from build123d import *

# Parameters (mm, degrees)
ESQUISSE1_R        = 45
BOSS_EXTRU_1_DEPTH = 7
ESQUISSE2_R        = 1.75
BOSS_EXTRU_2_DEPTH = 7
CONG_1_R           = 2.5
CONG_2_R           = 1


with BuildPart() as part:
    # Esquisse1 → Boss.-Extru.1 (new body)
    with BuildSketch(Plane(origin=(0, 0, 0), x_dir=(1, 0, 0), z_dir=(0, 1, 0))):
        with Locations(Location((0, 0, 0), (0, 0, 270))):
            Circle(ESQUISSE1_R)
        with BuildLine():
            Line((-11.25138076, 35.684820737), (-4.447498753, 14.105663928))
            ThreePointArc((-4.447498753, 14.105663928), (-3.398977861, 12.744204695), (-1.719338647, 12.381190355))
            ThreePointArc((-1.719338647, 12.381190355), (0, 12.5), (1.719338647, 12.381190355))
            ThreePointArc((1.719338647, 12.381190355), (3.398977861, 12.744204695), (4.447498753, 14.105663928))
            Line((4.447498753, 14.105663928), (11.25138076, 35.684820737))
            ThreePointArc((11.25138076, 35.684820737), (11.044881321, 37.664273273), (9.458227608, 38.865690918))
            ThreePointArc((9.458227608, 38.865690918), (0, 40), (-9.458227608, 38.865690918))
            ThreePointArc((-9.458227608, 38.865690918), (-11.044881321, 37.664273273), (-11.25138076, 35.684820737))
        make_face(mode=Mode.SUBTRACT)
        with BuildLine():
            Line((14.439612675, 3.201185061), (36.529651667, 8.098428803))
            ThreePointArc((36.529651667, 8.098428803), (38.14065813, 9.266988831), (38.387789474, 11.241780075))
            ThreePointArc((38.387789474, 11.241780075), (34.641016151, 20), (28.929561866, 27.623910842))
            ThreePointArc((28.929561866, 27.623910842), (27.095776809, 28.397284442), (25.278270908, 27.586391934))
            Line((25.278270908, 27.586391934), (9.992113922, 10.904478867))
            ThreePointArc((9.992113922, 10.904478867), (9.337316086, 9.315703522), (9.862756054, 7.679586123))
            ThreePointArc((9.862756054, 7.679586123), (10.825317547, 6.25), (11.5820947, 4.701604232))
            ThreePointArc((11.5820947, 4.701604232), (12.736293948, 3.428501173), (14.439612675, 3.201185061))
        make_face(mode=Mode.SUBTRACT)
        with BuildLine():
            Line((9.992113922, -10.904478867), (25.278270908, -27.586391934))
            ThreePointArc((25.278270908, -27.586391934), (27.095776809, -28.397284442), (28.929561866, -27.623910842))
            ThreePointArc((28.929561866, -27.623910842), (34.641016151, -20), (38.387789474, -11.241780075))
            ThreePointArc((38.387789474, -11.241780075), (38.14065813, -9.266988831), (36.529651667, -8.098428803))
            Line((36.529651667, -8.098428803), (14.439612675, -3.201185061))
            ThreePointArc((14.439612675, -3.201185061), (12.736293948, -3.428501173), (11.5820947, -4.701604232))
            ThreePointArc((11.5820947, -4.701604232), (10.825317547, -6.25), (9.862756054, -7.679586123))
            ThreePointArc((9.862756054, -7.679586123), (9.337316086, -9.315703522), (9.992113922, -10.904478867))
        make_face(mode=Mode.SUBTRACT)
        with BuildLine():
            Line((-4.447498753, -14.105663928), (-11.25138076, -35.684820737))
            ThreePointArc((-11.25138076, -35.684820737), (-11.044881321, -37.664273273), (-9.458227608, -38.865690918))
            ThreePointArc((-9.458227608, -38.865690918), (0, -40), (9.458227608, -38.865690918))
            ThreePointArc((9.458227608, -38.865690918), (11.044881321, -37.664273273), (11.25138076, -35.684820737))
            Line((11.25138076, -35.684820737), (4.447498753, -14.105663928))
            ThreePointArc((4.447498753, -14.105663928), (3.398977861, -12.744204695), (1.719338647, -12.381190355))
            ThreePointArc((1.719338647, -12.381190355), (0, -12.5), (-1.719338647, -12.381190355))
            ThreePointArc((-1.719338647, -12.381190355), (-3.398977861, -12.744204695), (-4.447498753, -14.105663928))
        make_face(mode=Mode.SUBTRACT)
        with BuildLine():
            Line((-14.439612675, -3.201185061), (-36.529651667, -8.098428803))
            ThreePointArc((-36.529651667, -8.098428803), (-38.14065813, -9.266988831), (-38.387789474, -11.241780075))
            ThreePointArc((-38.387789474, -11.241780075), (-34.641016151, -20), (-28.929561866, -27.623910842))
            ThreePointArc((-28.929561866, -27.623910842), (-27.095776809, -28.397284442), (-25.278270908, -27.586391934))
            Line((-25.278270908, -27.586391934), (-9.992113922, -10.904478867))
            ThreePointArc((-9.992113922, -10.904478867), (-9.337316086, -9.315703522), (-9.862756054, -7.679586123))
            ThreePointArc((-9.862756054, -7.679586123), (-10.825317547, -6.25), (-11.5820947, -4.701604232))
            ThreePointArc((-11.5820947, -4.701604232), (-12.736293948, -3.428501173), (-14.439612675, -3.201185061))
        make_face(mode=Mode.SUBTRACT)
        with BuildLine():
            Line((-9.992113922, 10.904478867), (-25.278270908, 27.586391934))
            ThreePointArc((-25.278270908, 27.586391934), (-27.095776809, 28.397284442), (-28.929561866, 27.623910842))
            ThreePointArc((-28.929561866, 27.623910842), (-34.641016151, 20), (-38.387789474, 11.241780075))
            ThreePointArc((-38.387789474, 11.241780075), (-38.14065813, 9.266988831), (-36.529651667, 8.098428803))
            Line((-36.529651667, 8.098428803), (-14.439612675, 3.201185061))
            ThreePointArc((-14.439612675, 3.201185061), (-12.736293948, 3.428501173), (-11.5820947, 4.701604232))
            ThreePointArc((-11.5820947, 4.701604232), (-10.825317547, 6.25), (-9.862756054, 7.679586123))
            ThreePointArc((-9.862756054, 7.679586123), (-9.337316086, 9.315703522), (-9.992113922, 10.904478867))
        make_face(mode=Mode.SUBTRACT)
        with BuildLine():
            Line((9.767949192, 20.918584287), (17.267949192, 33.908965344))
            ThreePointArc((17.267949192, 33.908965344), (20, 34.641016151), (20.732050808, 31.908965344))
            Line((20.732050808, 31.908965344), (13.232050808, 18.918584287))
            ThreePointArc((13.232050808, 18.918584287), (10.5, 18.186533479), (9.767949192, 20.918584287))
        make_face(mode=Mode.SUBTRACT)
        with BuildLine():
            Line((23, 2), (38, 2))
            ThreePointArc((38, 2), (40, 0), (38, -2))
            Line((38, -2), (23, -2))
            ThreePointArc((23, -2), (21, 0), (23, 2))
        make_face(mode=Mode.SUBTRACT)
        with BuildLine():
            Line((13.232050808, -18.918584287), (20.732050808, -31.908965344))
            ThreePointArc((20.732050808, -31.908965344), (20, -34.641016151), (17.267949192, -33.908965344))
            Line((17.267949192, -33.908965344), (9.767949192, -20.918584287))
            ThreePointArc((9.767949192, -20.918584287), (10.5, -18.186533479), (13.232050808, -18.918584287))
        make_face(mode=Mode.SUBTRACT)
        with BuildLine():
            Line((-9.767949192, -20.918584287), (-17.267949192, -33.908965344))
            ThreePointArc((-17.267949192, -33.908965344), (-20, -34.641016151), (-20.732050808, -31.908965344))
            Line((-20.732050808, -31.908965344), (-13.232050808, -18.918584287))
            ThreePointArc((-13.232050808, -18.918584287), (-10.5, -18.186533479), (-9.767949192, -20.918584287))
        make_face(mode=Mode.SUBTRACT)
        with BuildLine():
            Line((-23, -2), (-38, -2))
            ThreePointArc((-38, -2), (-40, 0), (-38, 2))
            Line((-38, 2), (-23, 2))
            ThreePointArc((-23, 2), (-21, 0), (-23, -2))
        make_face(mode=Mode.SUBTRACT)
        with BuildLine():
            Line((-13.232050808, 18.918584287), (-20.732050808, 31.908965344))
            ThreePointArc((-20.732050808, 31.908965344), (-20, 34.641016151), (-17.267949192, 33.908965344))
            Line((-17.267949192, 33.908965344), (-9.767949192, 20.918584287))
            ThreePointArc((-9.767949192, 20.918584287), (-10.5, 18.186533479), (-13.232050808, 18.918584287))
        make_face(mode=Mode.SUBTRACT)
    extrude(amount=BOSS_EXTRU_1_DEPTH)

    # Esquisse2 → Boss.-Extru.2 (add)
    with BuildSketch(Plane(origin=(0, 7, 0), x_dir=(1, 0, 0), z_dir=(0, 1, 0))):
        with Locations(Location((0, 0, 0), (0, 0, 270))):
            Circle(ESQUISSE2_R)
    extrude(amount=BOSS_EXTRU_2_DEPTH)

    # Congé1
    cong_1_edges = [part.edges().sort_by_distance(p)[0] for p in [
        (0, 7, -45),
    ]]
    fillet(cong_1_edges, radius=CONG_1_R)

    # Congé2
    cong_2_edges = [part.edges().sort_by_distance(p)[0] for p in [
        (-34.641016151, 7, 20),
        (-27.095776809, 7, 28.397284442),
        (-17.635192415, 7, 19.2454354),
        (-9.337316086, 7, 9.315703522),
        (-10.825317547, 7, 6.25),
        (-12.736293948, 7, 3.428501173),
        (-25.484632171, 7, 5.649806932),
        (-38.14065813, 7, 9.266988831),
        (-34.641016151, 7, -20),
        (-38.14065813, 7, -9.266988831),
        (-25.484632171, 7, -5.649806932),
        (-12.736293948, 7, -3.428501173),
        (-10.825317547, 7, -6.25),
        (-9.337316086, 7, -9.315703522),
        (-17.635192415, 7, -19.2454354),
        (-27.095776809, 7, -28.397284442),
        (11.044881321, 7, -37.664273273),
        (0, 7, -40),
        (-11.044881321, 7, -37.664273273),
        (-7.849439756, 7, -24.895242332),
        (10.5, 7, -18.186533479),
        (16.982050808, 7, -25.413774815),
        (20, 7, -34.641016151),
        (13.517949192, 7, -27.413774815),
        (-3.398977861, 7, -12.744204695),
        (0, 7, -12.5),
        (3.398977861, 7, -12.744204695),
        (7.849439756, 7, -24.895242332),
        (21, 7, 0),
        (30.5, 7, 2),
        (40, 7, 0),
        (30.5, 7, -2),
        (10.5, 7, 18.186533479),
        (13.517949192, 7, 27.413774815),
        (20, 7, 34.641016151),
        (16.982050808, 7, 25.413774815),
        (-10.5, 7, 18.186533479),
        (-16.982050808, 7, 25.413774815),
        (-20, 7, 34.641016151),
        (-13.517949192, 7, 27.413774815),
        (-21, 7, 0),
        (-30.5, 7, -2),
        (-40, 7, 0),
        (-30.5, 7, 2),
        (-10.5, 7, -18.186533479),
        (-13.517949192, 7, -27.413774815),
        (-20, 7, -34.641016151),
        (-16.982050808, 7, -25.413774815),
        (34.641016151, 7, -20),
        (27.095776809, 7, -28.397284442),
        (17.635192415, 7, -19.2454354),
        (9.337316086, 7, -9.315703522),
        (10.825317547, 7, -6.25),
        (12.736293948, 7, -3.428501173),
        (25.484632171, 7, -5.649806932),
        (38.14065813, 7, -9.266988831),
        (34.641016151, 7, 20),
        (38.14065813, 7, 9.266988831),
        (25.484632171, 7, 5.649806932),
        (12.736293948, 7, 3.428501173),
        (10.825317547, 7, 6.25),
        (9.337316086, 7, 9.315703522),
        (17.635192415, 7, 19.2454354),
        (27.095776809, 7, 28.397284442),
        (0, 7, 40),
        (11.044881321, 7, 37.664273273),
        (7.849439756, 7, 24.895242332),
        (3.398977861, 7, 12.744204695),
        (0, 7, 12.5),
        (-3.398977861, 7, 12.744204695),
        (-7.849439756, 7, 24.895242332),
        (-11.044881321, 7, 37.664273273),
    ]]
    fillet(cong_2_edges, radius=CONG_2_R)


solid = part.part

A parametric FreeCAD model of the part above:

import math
import FreeCAD as App
import Part
import Sketcher

V = App.Vector
Q = App.Units.Quantity


def edges_at(feature, points):
    """Names of the edges that pass closest to the given points."""
    edges = feature.Shape.Edges
    near = lambda p: min(range(len(edges)), key=lambda i: edges[i].distToShape(Part.Vertex(*p))[0])
    return sorted({f"Edge{near(p) + 1}" for p in points})

doc = App.newDocument("Part")
body = doc.addObject("PartDesign::Body", "Body")

# Sketch on XZ plane
sketch1 = doc.addObject("Sketcher::SketchObject", "Sketch")
body.addObject(sketch1)
sketch1.AttachmentSupport = (doc.XZ_Plane, [""])
sketch1.MapMode = "FlatFace"
sketch1.addGeometry([
    Part.Circle(V(0, 0, 0), V(0, 0, 1), 45),  # 0
    Part.LineSegment(V(-25.278271, -27.586392, 0), V(-9.992114, -10.904479, 0)),  # 1
    Part.ArcOfCircle(Part.Circle(V(-11.835307, -9.215503, 0), V(0, 0, 1), 2.5), math.radians(-42.5), math.radians(37.905932)),  # 2
    Part.ArcOfCircle(Part.Circle(V(0, 0, 0), V(0, 0, 1), 12.5), math.radians(-157.905932), math.radians(-142.094068)),  # 3
    Part.ArcOfCircle(Part.Circle(V(-13.898514, -5.641925, 0), V(0, 0, 1), 2.5), math.radians(22.094068), math.radians(102.5)),  # 4
    Part.LineSegment(V(-14.439613, -3.201185, 0), V(-36.529652, -8.098429, 0)),  # 5
    Part.ArcOfCircle(Part.Circle(V(-35.988553, -10.539169, 0), V(0, 0, 1), 2.5), math.radians(102.5), math.radians(196.322554)),  # 6
    Part.ArcOfCircle(Part.Circle(V(0, 0, 0), V(0, 0, 1), 40), math.radians(-163.677446), math.radians(-136.322554)),  # 7
    Part.ArcOfCircle(Part.Circle(V(-27.121464, -25.897416, 0), V(0, 0, 1), 2.5), math.radians(-136.322554), math.radians(-42.5)),  # 8
    Part.ArcOfCircle(Part.Circle(V(-11.5, -19.918584, 0), V(0, 0, 1), 2), math.radians(-30), math.radians(150)),  # 9
    Part.LineSegment(V(-13.232051, -18.918584, 0), V(-20.732051, -31.908965, 0)),  # 10
    Part.ArcOfCircle(Part.Circle(V(-19, -32.908965, 0), V(0, 0, 1), 2), math.radians(150), math.radians(330)),  # 11
    Part.LineSegment(V(-17.267949, -33.908965, 0), V(-9.767949, -20.918584, 0)),  # 12
    Part.LineSegment(V(-4.447499, -14.105664, 0), V(-11.251381, -35.684821, 0)),  # 13
    Part.ArcOfCircle(Part.Circle(V(-8.867088, -36.436585, 0), V(0, 0, 1), 2.5), math.radians(162.5), math.radians(256.322554)),  # 14
    Part.ArcOfCircle(Part.Circle(V(0, 0, 0), V(0, 0, 1), 40), math.radians(-103.677446), math.radians(-76.322554)),  # 15
    Part.ArcOfCircle(Part.Circle(V(8.867088, -36.436585, 0), V(0, 0, 1), 2.5), math.radians(-76.322554), math.radians(17.5)),  # 16
    Part.LineSegment(V(11.251381, -35.684821, 0), V(4.447499, -14.105664, 0)),  # 17
    Part.ArcOfCircle(Part.Circle(V(2.063206, -14.857428, 0), V(0, 0, 1), 2.5), math.radians(17.5), math.radians(97.905932)),  # 18
    Part.ArcOfCircle(Part.Circle(V(0, 0, 0), V(0, 0, 1), 12.5), math.radians(-97.905932), math.radians(-82.094068)),  # 19
    Part.ArcOfCircle(Part.Circle(V(-2.063206, -14.857428, 0), V(0, 0, 1), 2.5), math.radians(82.094068), math.radians(162.5)),  # 20
    Part.ArcOfCircle(Part.Circle(V(-23, 0, 0), V(0, 0, 1), 2), math.radians(-90), math.radians(90)),  # 21
    Part.LineSegment(V(-23, 2, 0), V(-38, 2, 0)),  # 22
    Part.ArcOfCircle(Part.Circle(V(-38, 0, 0), V(0, 0, 1), 2), math.radians(90), math.radians(270)),  # 23
    Part.LineSegment(V(-38, -2, 0), V(-23, -2, 0)),  # 24
    Part.LineSegment(V(-36.529652, 8.098429, 0), V(-14.439613, 3.201185, 0)),  # 25
    Part.ArcOfCircle(Part.Circle(V(-13.898514, 5.641925, 0), V(0, 0, 1), 2.5), math.radians(-102.5), math.radians(-22.094068)),  # 26
    Part.ArcOfCircle(Part.Circle(V(0, 0, 0), V(0, 0, 1), 12.5), math.radians(142.094068), math.radians(157.905932)),  # 27
    Part.ArcOfCircle(Part.Circle(V(-11.835307, 9.215503, 0), V(0, 0, 1), 2.5), math.radians(-37.905932), math.radians(42.5)),  # 28
    Part.LineSegment(V(-9.992114, 10.904479, 0), V(-25.278271, 27.586392, 0)),  # 29
    Part.ArcOfCircle(Part.Circle(V(-27.121464, 25.897416, 0), V(0, 0, 1), 2.5), math.radians(42.5), math.radians(136.322554)),  # 30
    Part.ArcOfCircle(Part.Circle(V(0, 0, 0), V(0, 0, 1), 40), math.radians(136.322554), math.radians(163.677446)),  # 31
    Part.ArcOfCircle(Part.Circle(V(-35.988553, 10.539169, 0), V(0, 0, 1), 2.5), math.radians(163.677446), math.radians(257.5)),  # 32
    Part.ArcOfCircle(Part.Circle(V(-11.5, 19.918584, 0), V(0, 0, 1), 2), math.radians(-150), math.radians(30)),  # 33
    Part.LineSegment(V(-9.767949, 20.918584, 0), V(-17.267949, 33.908965, 0)),  # 34
    Part.ArcOfCircle(Part.Circle(V(-19, 32.908965, 0), V(0, 0, 1), 2), math.radians(30), math.radians(210)),  # 35
    Part.LineSegment(V(-20.732051, 31.908965, 0), V(-13.232051, 18.918584, 0)),  # 36
    Part.ArcOfCircle(Part.Circle(V(11.5, -19.918584, 0), V(0, 0, 1), 2), math.radians(30), math.radians(210)),  # 37
    Part.LineSegment(V(9.767949, -20.918584, 0), V(17.267949, -33.908965, 0)),  # 38
    Part.ArcOfCircle(Part.Circle(V(19, -32.908965, 0), V(0, 0, 1), 2), math.radians(-150), math.radians(30)),  # 39
    Part.LineSegment(V(20.732051, -31.908965, 0), V(13.232051, -18.918584, 0)),  # 40
    Part.LineSegment(V(36.529652, -8.098429, 0), V(14.439613, -3.201185, 0)),  # 41
    Part.ArcOfCircle(Part.Circle(V(13.898514, -5.641925, 0), V(0, 0, 1), 2.5), math.radians(77.5), math.radians(157.905932)),  # 42
    Part.ArcOfCircle(Part.Circle(V(0, 0, 0), V(0, 0, 1), 12.5), math.radians(-37.905932), math.radians(-22.094068)),  # 43
    Part.ArcOfCircle(Part.Circle(V(11.835307, -9.215503, 0), V(0, 0, 1), 2.5), math.radians(142.094068), math.radians(222.5)),  # 44
    Part.LineSegment(V(9.992114, -10.904479, 0), V(25.278271, -27.586392, 0)),  # 45
    Part.ArcOfCircle(Part.Circle(V(27.121464, -25.897416, 0), V(0, 0, 1), 2.5), math.radians(-137.5), math.radians(-43.677446)),  # 46
    Part.ArcOfCircle(Part.Circle(V(0, 0, 0), V(0, 0, 1), 40), math.radians(-43.677446), math.radians(-16.322554)),  # 47
    Part.ArcOfCircle(Part.Circle(V(35.988553, -10.539169, 0), V(0, 0, 1), 2.5), math.radians(-16.322554), math.radians(77.5)),  # 48
    Part.ArcOfCircle(Part.Circle(V(23, 0, 0), V(0, 0, 1), 2), math.radians(90), math.radians(270)),  # 49
    Part.LineSegment(V(23, -2, 0), V(38, -2, 0)),  # 50
    Part.ArcOfCircle(Part.Circle(V(38, 0, 0), V(0, 0, 1), 2), math.radians(-90), math.radians(90)),  # 51
    Part.LineSegment(V(38, 2, 0), V(23, 2, 0)),  # 52
    Part.LineSegment(V(-11.251381, 35.684821, 0), V(-4.447499, 14.105664, 0)),  # 53
    Part.ArcOfCircle(Part.Circle(V(-2.063206, 14.857428, 0), V(0, 0, 1), 2.5), math.radians(-162.5), math.radians(-82.094068)),  # 54
    Part.ArcOfCircle(Part.Circle(V(0, 0, 0), V(0, 0, 1), 12.5), math.radians(82.094068), math.radians(97.905932)),  # 55
    Part.ArcOfCircle(Part.Circle(V(2.063206, 14.857428, 0), V(0, 0, 1), 2.5), math.radians(-97.905932), math.radians(-17.5)),  # 56
    Part.LineSegment(V(4.447499, 14.105664, 0), V(11.251381, 35.684821, 0)),  # 57
    Part.ArcOfCircle(Part.Circle(V(8.867088, 36.436585, 0), V(0, 0, 1), 2.5), math.radians(-17.5), math.radians(76.322554)),  # 58
    Part.ArcOfCircle(Part.Circle(V(0, 0, 0), V(0, 0, 1), 40), math.radians(76.322554), math.radians(103.677446)),  # 59
    Part.ArcOfCircle(Part.Circle(V(-8.867088, 36.436585, 0), V(0, 0, 1), 2.5), math.radians(103.677446), math.radians(197.5)),  # 60
    Part.ArcOfCircle(Part.Circle(V(11.5, 19.918584, 0), V(0, 0, 1), 2), math.radians(150), math.radians(330)),  # 61
    Part.LineSegment(V(13.232051, 18.918584, 0), V(20.732051, 31.908965, 0)),  # 62
    Part.ArcOfCircle(Part.Circle(V(19, 32.908965, 0), V(0, 0, 1), 2), math.radians(-30), math.radians(150)),  # 63
    Part.LineSegment(V(17.267949, 33.908965, 0), V(9.767949, 20.918584, 0)),  # 64
    Part.LineSegment(V(25.278271, 27.586392, 0), V(9.992114, 10.904479, 0)),  # 65
    Part.ArcOfCircle(Part.Circle(V(11.835307, 9.215503, 0), V(0, 0, 1), 2.5), math.radians(137.5), math.radians(217.905932)),  # 66
    Part.ArcOfCircle(Part.Circle(V(0, 0, 0), V(0, 0, 1), 12.5), math.radians(22.094068), math.radians(37.905932)),  # 67
    Part.ArcOfCircle(Part.Circle(V(13.898514, 5.641925, 0), V(0, 0, 1), 2.5), math.radians(-157.905932), math.radians(-77.5)),  # 68
    Part.LineSegment(V(14.439613, 3.201185, 0), V(36.529652, 8.098429, 0)),  # 69
    Part.ArcOfCircle(Part.Circle(V(35.988553, 10.539169, 0), V(0, 0, 1), 2.5), math.radians(-77.5), math.radians(16.322554)),  # 70
    Part.ArcOfCircle(Part.Circle(V(0, 0, 0), V(0, 0, 1), 40), math.radians(16.322554), math.radians(43.677446)),  # 71
    Part.ArcOfCircle(Part.Circle(V(27.121464, 25.897416, 0), V(0, 0, 1), 2.5), math.radians(43.677446), math.radians(137.5)),  # 72
], False)
sketch1.addConstraint([
    Sketcher.Constraint("Tangent", 1, 2, 2, 1),
    Sketcher.Constraint("Tangent", 2, 2, 3, 2),
    Sketcher.Constraint("Tangent", 3, 1, 4, 1),
    Sketcher.Constraint("Tangent", 4, 2, 5, 1),
    Sketcher.Constraint("Tangent", 5, 2, 6, 1),
    Sketcher.Constraint("Tangent", 6, 2, 7, 1),
    Sketcher.Constraint("Tangent", 7, 2, 8, 1),
    Sketcher.Constraint("Tangent", 8, 2, 1, 1),
    Sketcher.Constraint("Tangent", 9, 2, 10, 1),
    Sketcher.Constraint("Tangent", 10, 2, 11, 1),
    Sketcher.Constraint("Tangent", 11, 2, 12, 1),
    Sketcher.Constraint("Tangent", 12, 2, 9, 1),
    Sketcher.Constraint("Tangent", 13, 2, 14, 1),
    Sketcher.Constraint("Tangent", 14, 2, 15, 1),
    Sketcher.Constraint("Tangent", 15, 2, 16, 1),
    Sketcher.Constraint("Tangent", 16, 2, 17, 1),
    Sketcher.Constraint("Tangent", 17, 2, 18, 1),
    Sketcher.Constraint("Tangent", 18, 2, 19, 2),
    Sketcher.Constraint("Tangent", 19, 1, 20, 1),
    Sketcher.Constraint("Tangent", 20, 2, 13, 1),
    Sketcher.Constraint("Tangent", 21, 2, 22, 1),
    Sketcher.Constraint("Tangent", 22, 2, 23, 1),
    Sketcher.Constraint("Tangent", 23, 2, 24, 1),
    Sketcher.Constraint("Tangent", 24, 2, 21, 1),
    Sketcher.Constraint("Tangent", 25, 2, 26, 1),
    Sketcher.Constraint("Tangent", 26, 2, 27, 2),
    Sketcher.Constraint("Tangent", 27, 1, 28, 1),
    Sketcher.Constraint("Tangent", 28, 2, 29, 1),
    Sketcher.Constraint("Tangent", 29, 2, 30, 1),
    Sketcher.Constraint("Tangent", 30, 2, 31, 1),
    Sketcher.Constraint("Tangent", 31, 2, 32, 1),
    Sketcher.Constraint("Tangent", 32, 2, 25, 1),
    Sketcher.Constraint("Tangent", 33, 2, 34, 1),
    Sketcher.Constraint("Tangent", 34, 2, 35, 1),
    Sketcher.Constraint("Tangent", 35, 2, 36, 1),
    Sketcher.Constraint("Tangent", 36, 2, 33, 1),
    Sketcher.Constraint("Tangent", 37, 2, 38, 1),
    Sketcher.Constraint("Tangent", 38, 2, 39, 1),
    Sketcher.Constraint("Tangent", 39, 2, 40, 1),
    Sketcher.Constraint("Tangent", 40, 2, 37, 1),
    Sketcher.Constraint("Tangent", 41, 2, 42, 1),
    Sketcher.Constraint("Tangent", 42, 2, 43, 2),
    Sketcher.Constraint("Tangent", 43, 1, 44, 1),
    Sketcher.Constraint("Tangent", 44, 2, 45, 1),
    Sketcher.Constraint("Tangent", 45, 2, 46, 1),
    Sketcher.Constraint("Tangent", 46, 2, 47, 1),
    Sketcher.Constraint("Tangent", 47, 2, 48, 1),
    Sketcher.Constraint("Tangent", 48, 2, 41, 1),
    Sketcher.Constraint("Tangent", 49, 2, 50, 1),
    Sketcher.Constraint("Tangent", 50, 2, 51, 1),
    Sketcher.Constraint("Tangent", 51, 2, 52, 1),
    Sketcher.Constraint("Tangent", 52, 2, 49, 1),
    Sketcher.Constraint("Tangent", 53, 2, 54, 1),
    Sketcher.Constraint("Tangent", 54, 2, 55, 2),
    Sketcher.Constraint("Tangent", 55, 1, 56, 1),
    Sketcher.Constraint("Tangent", 56, 2, 57, 1),
    Sketcher.Constraint("Tangent", 57, 2, 58, 1),
    Sketcher.Constraint("Tangent", 58, 2, 59, 1),
    Sketcher.Constraint("Tangent", 59, 2, 60, 1),
    Sketcher.Constraint("Tangent", 60, 2, 53, 1),
    Sketcher.Constraint("Tangent", 61, 2, 62, 1),
    Sketcher.Constraint("Tangent", 62, 2, 63, 1),
    Sketcher.Constraint("Tangent", 63, 2, 64, 1),
    Sketcher.Constraint("Tangent", 64, 2, 61, 1),
    Sketcher.Constraint("Tangent", 65, 2, 66, 1),
    Sketcher.Constraint("Tangent", 66, 2, 67, 2),
    Sketcher.Constraint("Tangent", 67, 1, 68, 1),
    Sketcher.Constraint("Tangent", 68, 2, 69, 1),
    Sketcher.Constraint("Tangent", 69, 2, 70, 1),
    Sketcher.Constraint("Tangent", 70, 2, 71, 1),
    Sketcher.Constraint("Tangent", 71, 2, 72, 1),
    Sketcher.Constraint("Tangent", 72, 2, 65, 1),
    Sketcher.Constraint("Horizontal", 22),
    Sketcher.Constraint("Horizontal", 24),
    Sketcher.Constraint("Horizontal", 50),
    Sketcher.Constraint("Horizontal", 52),
    Sketcher.Constraint("Coincident", 0, 3, -1, 1),
    Sketcher.Constraint("Coincident", 3, 3, -1, 1),
    Sketcher.Constraint("Coincident", 7, 3, -1, 1),
    Sketcher.Constraint("Coincident", 15, 3, -1, 1),
    Sketcher.Constraint("Coincident", 19, 3, -1, 1),
    Sketcher.Constraint("Coincident", 27, 3, -1, 1),
    Sketcher.Constraint("Coincident", 31, 3, -1, 1),
    Sketcher.Constraint("Coincident", 43, 3, -1, 1),
    Sketcher.Constraint("Coincident", 47, 3, -1, 1),
    Sketcher.Constraint("Coincident", 55, 3, -1, 1),
    Sketcher.Constraint("Coincident", 59, 3, -1, 1),
    Sketcher.Constraint("Coincident", 67, 3, -1, 1),
    Sketcher.Constraint("Coincident", 71, 3, -1, 1),
    Sketcher.Constraint("Equal", 2, 4),
    Sketcher.Constraint("Equal", 4, 6),
    Sketcher.Constraint("Equal", 6, 8),
    Sketcher.Constraint("Equal", 9, 11),
    Sketcher.Constraint("Equal", 8, 14),
    Sketcher.Constraint("Equal", 7, 15),
    Sketcher.Constraint("Equal", 14, 16),
    Sketcher.Constraint("Equal", 16, 18),
    Sketcher.Constraint("Equal", 3, 19),
    Sketcher.Constraint("Equal", 18, 20),
    Sketcher.Constraint("Equal", 11, 21),
    Sketcher.Constraint("Equal", 20, 26),
    Sketcher.Constraint("Equal", 19, 27),
    Sketcher.Constraint("Equal", 26, 28),
    Sketcher.Constraint("Equal", 28, 30),
    Sketcher.Constraint("Equal", 15, 31),
    Sketcher.Constraint("Equal", 30, 32),
    Sketcher.Constraint("Equal", 23, 33),
    Sketcher.Constraint("Equal", 33, 35),
    Sketcher.Constraint("Equal", 35, 37),
    Sketcher.Constraint("Equal", 37, 39),
    Sketcher.Constraint("Equal", 32, 42),
    Sketcher.Constraint("Equal", 27, 43),
    Sketcher.Constraint("Equal", 42, 44),
    Sketcher.Constraint("Equal", 44, 46),
    Sketcher.Constraint("Equal", 31, 47),
    Sketcher.Constraint("Equal", 46, 48),
    Sketcher.Constraint("Equal", 39, 49),
    Sketcher.Constraint("Equal", 48, 54),
    Sketcher.Constraint("Equal", 43, 55),
    Sketcher.Constraint("Equal", 54, 56),
    Sketcher.Constraint("Equal", 56, 58),
    Sketcher.Constraint("Equal", 47, 59),
    Sketcher.Constraint("Equal", 58, 60),
    Sketcher.Constraint("Equal", 51, 61),
    Sketcher.Constraint("Equal", 61, 63),
    Sketcher.Constraint("Equal", 60, 66),
    Sketcher.Constraint("Equal", 55, 67),
    Sketcher.Constraint("Equal", 66, 68),
    Sketcher.Constraint("Equal", 68, 70),
    Sketcher.Constraint("Equal", 59, 71),
    Sketcher.Constraint("Equal", 70, 72),
    Sketcher.Constraint("Symmetric", 33, 3, 37, 3, -1, 1),
    Sketcher.Constraint("Symmetric", 35, 3, 39, 3, -1, 1),
    Sketcher.Constraint("Symmetric", 21, 3, 49, 3, -1, 1),
    Sketcher.Constraint("Symmetric", 9, 3, 61, 3, -1, 1),
    Sketcher.Constraint("Symmetric", 11, 3, 63, 3, -1, 1),
    Sketcher.Constraint("Symmetric", 25, 2, 41, 2, -1, 1),
    Sketcher.Constraint("Symmetric", 28, 2, 44, 2, -1, 1),
    Sketcher.Constraint("Symmetric", 17, 2, 53, 2, -1, 1),
    Sketcher.Constraint("Symmetric", 20, 2, 56, 2, -1, 1),
    Sketcher.Constraint("Symmetric", 1, 2, 65, 2, -1, 1),
    Sketcher.Constraint("Symmetric", 4, 2, 68, 2, -1, 1),
    Sketcher.Constraint("Symmetric", 9, 3, 37, 3, -2),
    Sketcher.Constraint("Symmetric", 11, 3, 39, 3, -2),
    Sketcher.Constraint("Symmetric", 23, 3, 51, 3, -2),
    Sketcher.Constraint("Symmetric", 13, 2, 16, 2, -2),
    Sketcher.Constraint("Symmetric", 4, 2, 41, 2, -2),
    Sketcher.Constraint("Symmetric", 1, 2, 44, 2, -2),
    Sketcher.Constraint("Equal", 1, 5),
    Sketcher.Constraint("Equal", 5, 13),
    Sketcher.Constraint("Diameter", 0, Q("90 mm")),
    Sketcher.Constraint("Radius", 7, Q("40 mm")),
    Sketcher.Constraint("Radius", 9, Q("2 mm")),
    Sketcher.Constraint("Radius", 2, Q("2.5 mm")),
    Sketcher.Constraint("Radius", 3, Q("12.5 mm")),
    Sketcher.Constraint("DistanceX", 22, 2, 22, 1, Q("15 mm")),
    Sketcher.Constraint("Angle", 10, Q("-120 deg")),
    Sketcher.Constraint("Distance", 10, Q("15 mm")),
    Sketcher.Constraint("DistanceX", 11, 3, -1, 1, Q("19 mm")),
    Sketcher.Constraint("DistanceX", 21, 3, -1, 1, Q("23 mm")),
    Sketcher.Constraint("Angle", 1, Q("47.5 deg")),
    Sketcher.Constraint("Angle", 5, Q("-167.5 deg")),
    Sketcher.Constraint("Angle", 13, Q("-107.5 deg")),
    Sketcher.Constraint("DistanceX", -1, 1, 17, 2, Q("4.447499 mm")),
    Sketcher.Constraint("DistanceY", 9, 3, -1, 1, Q("19.918584 mm")),
])
pad1 = doc.addObject("PartDesign::Pad", "Pad")
body.addObject(pad1)
pad1.Profile = sketch1
pad1.Length = 7
pad1.Reversed = True

# Sketch on XZ plane
sketch2 = doc.addObject("Sketcher::SketchObject", "Sketch001")
body.addObject(sketch2)
sketch2.AttachmentSupport = (doc.XZ_Plane, [""])
sketch2.MapMode = "FlatFace"
sketch2.AttachmentOffset = App.Placement(V(0, 0, -7), App.Rotation())
sketch2.addGeometry(Part.Circle(V(0, 0, 0), V(0, 0, 1), 1.75), False)
sketch2.addConstraint([
    Sketcher.Constraint("Coincident", 0, 3, -1, 1),
    Sketcher.Constraint("Diameter", 0, Q("3.5 mm")),
])
pad2 = doc.addObject("PartDesign::Pad", "Pad001")
body.addObject(pad2)
pad2.Profile = sketch2
pad2.Length = 7
pad2.Reversed = True
doc.recompute()

fillet = doc.addObject("PartDesign::Fillet", "Fillet")
body.addObject(fillet)
fillet.Base = (pad2, edges_at(pad2, [(0, 7, -45)]))
fillet.Radius = 2.5
doc.recompute()

fillet2 = doc.addObject("PartDesign::Fillet", "Fillet001")
body.addObject(fillet2)
fillet2.Base = (fillet, edges_at(fillet, [
    (-34.641, 7, 20),
    (-27.096, 7, 28.397),
    (-17.635, 7, 19.245),
    (-9.337, 7, 9.316),
    (-10.825, 7, 6.25),
    (-12.736, 7, 3.429),
    (-25.485, 7, 5.65),
    (-38.141, 7, 9.267),
    (-34.641, 7, -20),
    (-38.141, 7, -9.267),
    (-25.485, 7, -5.65),
    (-12.736, 7, -3.429),
    (-10.825, 7, -6.25),
    (-9.337, 7, -9.316),
    (-17.635, 7, -19.245),
    (-27.096, 7, -28.397),
    (11.045, 7, -37.664),
    (0, 7, -40),
    (-11.045, 7, -37.664),
    (-7.849, 7, -24.895),
    (10.5, 7, -18.187),
    (16.982, 7, -25.414),
    (20, 7, -34.641),
    (13.518, 7, -27.414),
    (-3.399, 7, -12.744),
    (0, 7, -12.5),
    (3.399, 7, -12.744),
    (7.849, 7, -24.895),
    (21, 7, 0),
    (30.5, 7, 2),
    (40, 7, 0),
    (30.5, 7, -2),
    (10.5, 7, 18.187),
    (13.518, 7, 27.414),
    (20, 7, 34.641),
    (16.982, 7, 25.414),
    (-10.5, 7, 18.187),
    (-16.982, 7, 25.414),
    (-20, 7, 34.641),
    (-13.518, 7, 27.414),
    (-21, 7, 0),
    (-30.5, 7, -2),
    (-40, 7, 0),
    (-30.5, 7, 2),
    (-10.5, 7, -18.187),
    (-13.518, 7, -27.414),
    (-20, 7, -34.641),
    (-16.982, 7, -25.414),
    (34.641, 7, -20),
    (27.096, 7, -28.397),
    (17.635, 7, -19.245),
    (9.337, 7, -9.316),
    (10.825, 7, -6.25),
    (12.736, 7, -3.429),
    (25.485, 7, -5.65),
    (38.141, 7, -9.267),
    (34.641, 7, 20),
    (38.141, 7, 9.267),
    (25.485, 7, 5.65),
    (12.736, 7, 3.429),
    (10.825, 7, 6.25),
    (9.337, 7, 9.316),
    (17.635, 7, 19.245),
    (27.096, 7, 28.397),
    (0, 7, 40),
    (11.045, 7, 37.664),
    (7.849, 7, 24.895),
    (3.399, 7, 12.744),
    (0, 7, 12.5),
    (-3.399, 7, 12.744),
    (-7.849, 7, 24.895),
    (-11.045, 7, 37.664),
]))
fillet2.Radius = 1

doc.recompute()
